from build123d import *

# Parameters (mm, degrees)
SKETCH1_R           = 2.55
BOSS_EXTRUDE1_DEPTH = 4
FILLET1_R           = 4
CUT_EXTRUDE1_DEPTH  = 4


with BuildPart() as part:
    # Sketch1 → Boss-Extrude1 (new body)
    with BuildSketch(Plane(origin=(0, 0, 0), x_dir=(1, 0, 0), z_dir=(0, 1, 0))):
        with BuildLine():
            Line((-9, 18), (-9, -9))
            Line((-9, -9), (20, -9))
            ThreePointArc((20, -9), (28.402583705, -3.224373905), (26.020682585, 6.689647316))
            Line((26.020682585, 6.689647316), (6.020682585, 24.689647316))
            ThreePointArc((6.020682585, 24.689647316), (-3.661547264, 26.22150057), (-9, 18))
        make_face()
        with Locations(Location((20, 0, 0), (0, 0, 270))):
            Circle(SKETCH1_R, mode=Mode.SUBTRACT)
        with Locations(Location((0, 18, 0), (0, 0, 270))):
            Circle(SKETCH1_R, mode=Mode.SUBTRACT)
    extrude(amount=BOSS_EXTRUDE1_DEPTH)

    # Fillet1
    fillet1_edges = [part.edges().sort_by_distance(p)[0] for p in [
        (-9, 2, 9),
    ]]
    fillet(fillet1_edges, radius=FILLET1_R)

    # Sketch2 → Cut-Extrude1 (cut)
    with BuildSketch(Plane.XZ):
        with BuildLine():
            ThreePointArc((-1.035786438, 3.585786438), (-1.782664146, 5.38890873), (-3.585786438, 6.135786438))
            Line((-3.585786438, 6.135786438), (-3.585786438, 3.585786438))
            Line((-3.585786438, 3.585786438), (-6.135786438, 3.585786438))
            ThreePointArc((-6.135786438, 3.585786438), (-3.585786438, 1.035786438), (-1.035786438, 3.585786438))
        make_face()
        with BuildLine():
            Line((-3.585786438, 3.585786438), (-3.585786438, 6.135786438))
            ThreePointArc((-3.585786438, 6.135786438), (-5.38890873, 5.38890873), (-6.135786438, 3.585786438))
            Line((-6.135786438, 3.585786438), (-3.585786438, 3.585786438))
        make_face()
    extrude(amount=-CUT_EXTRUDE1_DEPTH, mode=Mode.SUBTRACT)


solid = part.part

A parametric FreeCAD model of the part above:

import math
import FreeCAD as App
import Part
import Sketcher
from FreeCAD import Vector
Q = App.Units.Quantity


def edges_at(feature, points):
    """Names of the edges that pass closest to the given points."""
    edges = feature.Shape.Edges
    near = lambda p: min(range(len(edges)), key=lambda i: edges[i].distToShape(Part.Vertex(*p))[0])
    return sorted({f"Edge{near(p) + 1}" for p in points})

doc = App.newDocument("Part")
params = doc.addObject("Spreadsheet::Sheet", "Params")
for row, (alias, value) in enumerate([
    ("sketch1_radius", "9 mm"),
    ("sketch1_diameter", "5.1 mm"),
    ("sketch1_width", "29 mm"),
    ("sketch1_height", "27 mm"),
    ("pad1_length", "4 mm"),
    ("fillet_radius", "4 mm"),
    ("sketch2_radius", "2.55 mm"),
    ("pocket1_length", "4 mm"),
], start=1):
    params.set(f"A{row}", alias)
    params.set(f"B{row}", "=" + value)
    params.setAlias(f"B{row}", alias)

body = doc.addObject("PartDesign::Body", "Body")

sketch1 = body.newObject("Sketcher::SketchObject", "Sketch")
sketch1.AttachmentSupport = (doc.getObject("XZ_Plane"), [""])
sketch1.MapMode = "FlatFace"
sketch1.addGeometry(Part.LineSegment(Vector(-9, -18, 0), Vector(-9, 9, 0)), False)
sketch1.addGeometry(Part.LineSegment(Vector(-9, 9, 0), Vector(20, 9, 0)), False)
sketch1.addGeometry(Part.ArcOfCircle(Part.Circle(Vector(20, 0, 0), Vector(0, 0, 1), 9), math.radians(-48.012788), math.radians(90)), False)
sketch1.addGeometry(Part.LineSegment(Vector(26.020683, -6.689647, 0), Vector(6.020683, -24.689647, 0)), False)
sketch1.addGeometry(Part.ArcOfCircle(Part.Circle(Vector(0, -18, 0), Vector(0, 0, 1), 9), math.radians(-180), math.radians(-48.012788)), False)
sketch1.addGeometry(Part.Circle(Vector(20, 0, 0), Vector(0, 0, 1), 2.55), False)
sketch1.addGeometry(Part.Circle(Vector(0, -18, 0), Vector(0, 0, 1), 2.55), False)
sketch1.addConstraint(Sketcher.Constraint("Coincident", 0, 2, 1, 1))
sketch1.addConstraint(Sketcher.Constraint("Tangent", 1, 2, 2, 2))
sketch1.addConstraint(Sketcher.Constraint("Tangent", 2, 1, 3, 1))
sketch1.addConstraint(Sketcher.Constraint("Tangent", 3, 2, 4, 2))
sketch1.addConstraint(Sketcher.Constraint("Tangent", 4, 1, 0, 1))
sketch1.addConstraint(Sketcher.Constraint("Vertical", 0))
sketch1.addConstraint(Sketcher.Constraint("Horizontal", 1))
sketch1.addConstraint(Sketcher.Constraint("Coincident", 5, 3, 2, 3))
sketch1.addConstraint(Sketcher.Constraint("Coincident", 6, 3, 4, 3))
sketch1.addConstraint(Sketcher.Constraint("Equal", 2, 4))
sketch1.addConstraint(Sketcher.Constraint("Equal", 5, 6))
sketch1.addConstraint(Sketcher.Constraint("PointOnObject", 2, 3, -1))
sketch1.addConstraint(Sketcher.Constraint("PointOnObject", 4, 3, -2))
sketch1.addConstraint(Sketcher.Constraint("Radius", 2, Q("9 mm")))
sketch1.addConstraint(Sketcher.Constraint("Diameter", 5, Q("5.1 mm")))
sketch1.addConstraint(Sketcher.Constraint("DistanceX", 1, 1, 1, 2, Q("29 mm")))
sketch1.addConstraint(Sketcher.Constraint("DistanceY", 0, 1, 0, 2, Q("27 mm")))
sketch1.setExpression("Constraints[13]", "Params.sketch1_radius")
sketch1.setExpression("Constraints[14]", "Params.sketch1_diameter")
sketch1.setExpression("Constraints[15]", "Params.sketch1_width")
sketch1.setExpression("Constraints[16]", "Params.sketch1_height")
pad1 = body.newObject("PartDesign::Pad", "Pad")
pad1.Profile = sketch1
pad1.setExpression("Length", "Params.pad1_length")
pad1.Reversed = True
doc.recompute()

fillet = body.newObject("PartDesign::Fillet", "Fillet")
fillet.Base = (pad1, edges_at(pad1, [(-9, 2, 9)]))
fillet.setExpression("Radius", "Params.fillet_radius")

sketch2 = body.newObject("Sketcher::SketchObject", "Sketch001")
sketch2.AttachmentSupport = (doc.getObject("XZ_Plane"), [""])
sketch2.MapMode = "FlatFace"
sketch2.addGeometry(Part.ArcOfCircle(Part.Circle(Vector(-3.585786, 3.585786, 0), Vector(0, 0, 1), 2.55), math.radians(0), math.radians(90)), False)
sketch2.addGeometry(Part.ArcOfCircle(Part.Circle(Vector(-3.585786, 3.585786, 0), Vector(0, 0, 1), 2.55), math.radians(90), math.radians(180)), False)
sketch2.addGeometry(Part.ArcOfCircle(Part.Circle(Vector(-3.585786, 3.585786, 0), Vector(0, 0, 1), 2.55), math.radians(180), math.radians(360)), False)
sketch2.addConstraint(Sketcher.Constraint("Tangent", 0, 2, 1, 1))
sketch2.addConstraint(Sketcher.Constraint("Tangent", 1, 2, 2, 1))
sketch2.addConstraint(Sketcher.Constraint("Tangent", 2, 2, 0, 1))
sketch2.addConstraint(Sketcher.Constraint("Horizontal", 2, 3, 1, 2))
sketch2.addConstraint(Sketcher.Constraint("Horizontal", 1, 2, 2, 2))
sketch2.addConstraint(Sketcher.Constraint("Vertical", 2, 3, 0, 2))
sketch2.addConstraint(Sketcher.Constraint("Radius", 0, Q("2.55 mm")))
sketch2.addConstraint(Sketcher.Constraint("DistanceX", 0, 3, -1, 1, Q("3.585786 mm")))
sketch2.addConstraint(Sketcher.Constraint("DistanceY", -1, 1, 0, 3, Q("3.585786 mm")))
sketch2.setExpression("Constraints[6]", "Params.sketch2_radius")
pocket1 = body.newObject("PartDesign::Pocket", "Pocket")
pocket1.Profile = sketch2
pocket1.setExpression("Length", "Params.pocket1_length")

doc.recompute()
